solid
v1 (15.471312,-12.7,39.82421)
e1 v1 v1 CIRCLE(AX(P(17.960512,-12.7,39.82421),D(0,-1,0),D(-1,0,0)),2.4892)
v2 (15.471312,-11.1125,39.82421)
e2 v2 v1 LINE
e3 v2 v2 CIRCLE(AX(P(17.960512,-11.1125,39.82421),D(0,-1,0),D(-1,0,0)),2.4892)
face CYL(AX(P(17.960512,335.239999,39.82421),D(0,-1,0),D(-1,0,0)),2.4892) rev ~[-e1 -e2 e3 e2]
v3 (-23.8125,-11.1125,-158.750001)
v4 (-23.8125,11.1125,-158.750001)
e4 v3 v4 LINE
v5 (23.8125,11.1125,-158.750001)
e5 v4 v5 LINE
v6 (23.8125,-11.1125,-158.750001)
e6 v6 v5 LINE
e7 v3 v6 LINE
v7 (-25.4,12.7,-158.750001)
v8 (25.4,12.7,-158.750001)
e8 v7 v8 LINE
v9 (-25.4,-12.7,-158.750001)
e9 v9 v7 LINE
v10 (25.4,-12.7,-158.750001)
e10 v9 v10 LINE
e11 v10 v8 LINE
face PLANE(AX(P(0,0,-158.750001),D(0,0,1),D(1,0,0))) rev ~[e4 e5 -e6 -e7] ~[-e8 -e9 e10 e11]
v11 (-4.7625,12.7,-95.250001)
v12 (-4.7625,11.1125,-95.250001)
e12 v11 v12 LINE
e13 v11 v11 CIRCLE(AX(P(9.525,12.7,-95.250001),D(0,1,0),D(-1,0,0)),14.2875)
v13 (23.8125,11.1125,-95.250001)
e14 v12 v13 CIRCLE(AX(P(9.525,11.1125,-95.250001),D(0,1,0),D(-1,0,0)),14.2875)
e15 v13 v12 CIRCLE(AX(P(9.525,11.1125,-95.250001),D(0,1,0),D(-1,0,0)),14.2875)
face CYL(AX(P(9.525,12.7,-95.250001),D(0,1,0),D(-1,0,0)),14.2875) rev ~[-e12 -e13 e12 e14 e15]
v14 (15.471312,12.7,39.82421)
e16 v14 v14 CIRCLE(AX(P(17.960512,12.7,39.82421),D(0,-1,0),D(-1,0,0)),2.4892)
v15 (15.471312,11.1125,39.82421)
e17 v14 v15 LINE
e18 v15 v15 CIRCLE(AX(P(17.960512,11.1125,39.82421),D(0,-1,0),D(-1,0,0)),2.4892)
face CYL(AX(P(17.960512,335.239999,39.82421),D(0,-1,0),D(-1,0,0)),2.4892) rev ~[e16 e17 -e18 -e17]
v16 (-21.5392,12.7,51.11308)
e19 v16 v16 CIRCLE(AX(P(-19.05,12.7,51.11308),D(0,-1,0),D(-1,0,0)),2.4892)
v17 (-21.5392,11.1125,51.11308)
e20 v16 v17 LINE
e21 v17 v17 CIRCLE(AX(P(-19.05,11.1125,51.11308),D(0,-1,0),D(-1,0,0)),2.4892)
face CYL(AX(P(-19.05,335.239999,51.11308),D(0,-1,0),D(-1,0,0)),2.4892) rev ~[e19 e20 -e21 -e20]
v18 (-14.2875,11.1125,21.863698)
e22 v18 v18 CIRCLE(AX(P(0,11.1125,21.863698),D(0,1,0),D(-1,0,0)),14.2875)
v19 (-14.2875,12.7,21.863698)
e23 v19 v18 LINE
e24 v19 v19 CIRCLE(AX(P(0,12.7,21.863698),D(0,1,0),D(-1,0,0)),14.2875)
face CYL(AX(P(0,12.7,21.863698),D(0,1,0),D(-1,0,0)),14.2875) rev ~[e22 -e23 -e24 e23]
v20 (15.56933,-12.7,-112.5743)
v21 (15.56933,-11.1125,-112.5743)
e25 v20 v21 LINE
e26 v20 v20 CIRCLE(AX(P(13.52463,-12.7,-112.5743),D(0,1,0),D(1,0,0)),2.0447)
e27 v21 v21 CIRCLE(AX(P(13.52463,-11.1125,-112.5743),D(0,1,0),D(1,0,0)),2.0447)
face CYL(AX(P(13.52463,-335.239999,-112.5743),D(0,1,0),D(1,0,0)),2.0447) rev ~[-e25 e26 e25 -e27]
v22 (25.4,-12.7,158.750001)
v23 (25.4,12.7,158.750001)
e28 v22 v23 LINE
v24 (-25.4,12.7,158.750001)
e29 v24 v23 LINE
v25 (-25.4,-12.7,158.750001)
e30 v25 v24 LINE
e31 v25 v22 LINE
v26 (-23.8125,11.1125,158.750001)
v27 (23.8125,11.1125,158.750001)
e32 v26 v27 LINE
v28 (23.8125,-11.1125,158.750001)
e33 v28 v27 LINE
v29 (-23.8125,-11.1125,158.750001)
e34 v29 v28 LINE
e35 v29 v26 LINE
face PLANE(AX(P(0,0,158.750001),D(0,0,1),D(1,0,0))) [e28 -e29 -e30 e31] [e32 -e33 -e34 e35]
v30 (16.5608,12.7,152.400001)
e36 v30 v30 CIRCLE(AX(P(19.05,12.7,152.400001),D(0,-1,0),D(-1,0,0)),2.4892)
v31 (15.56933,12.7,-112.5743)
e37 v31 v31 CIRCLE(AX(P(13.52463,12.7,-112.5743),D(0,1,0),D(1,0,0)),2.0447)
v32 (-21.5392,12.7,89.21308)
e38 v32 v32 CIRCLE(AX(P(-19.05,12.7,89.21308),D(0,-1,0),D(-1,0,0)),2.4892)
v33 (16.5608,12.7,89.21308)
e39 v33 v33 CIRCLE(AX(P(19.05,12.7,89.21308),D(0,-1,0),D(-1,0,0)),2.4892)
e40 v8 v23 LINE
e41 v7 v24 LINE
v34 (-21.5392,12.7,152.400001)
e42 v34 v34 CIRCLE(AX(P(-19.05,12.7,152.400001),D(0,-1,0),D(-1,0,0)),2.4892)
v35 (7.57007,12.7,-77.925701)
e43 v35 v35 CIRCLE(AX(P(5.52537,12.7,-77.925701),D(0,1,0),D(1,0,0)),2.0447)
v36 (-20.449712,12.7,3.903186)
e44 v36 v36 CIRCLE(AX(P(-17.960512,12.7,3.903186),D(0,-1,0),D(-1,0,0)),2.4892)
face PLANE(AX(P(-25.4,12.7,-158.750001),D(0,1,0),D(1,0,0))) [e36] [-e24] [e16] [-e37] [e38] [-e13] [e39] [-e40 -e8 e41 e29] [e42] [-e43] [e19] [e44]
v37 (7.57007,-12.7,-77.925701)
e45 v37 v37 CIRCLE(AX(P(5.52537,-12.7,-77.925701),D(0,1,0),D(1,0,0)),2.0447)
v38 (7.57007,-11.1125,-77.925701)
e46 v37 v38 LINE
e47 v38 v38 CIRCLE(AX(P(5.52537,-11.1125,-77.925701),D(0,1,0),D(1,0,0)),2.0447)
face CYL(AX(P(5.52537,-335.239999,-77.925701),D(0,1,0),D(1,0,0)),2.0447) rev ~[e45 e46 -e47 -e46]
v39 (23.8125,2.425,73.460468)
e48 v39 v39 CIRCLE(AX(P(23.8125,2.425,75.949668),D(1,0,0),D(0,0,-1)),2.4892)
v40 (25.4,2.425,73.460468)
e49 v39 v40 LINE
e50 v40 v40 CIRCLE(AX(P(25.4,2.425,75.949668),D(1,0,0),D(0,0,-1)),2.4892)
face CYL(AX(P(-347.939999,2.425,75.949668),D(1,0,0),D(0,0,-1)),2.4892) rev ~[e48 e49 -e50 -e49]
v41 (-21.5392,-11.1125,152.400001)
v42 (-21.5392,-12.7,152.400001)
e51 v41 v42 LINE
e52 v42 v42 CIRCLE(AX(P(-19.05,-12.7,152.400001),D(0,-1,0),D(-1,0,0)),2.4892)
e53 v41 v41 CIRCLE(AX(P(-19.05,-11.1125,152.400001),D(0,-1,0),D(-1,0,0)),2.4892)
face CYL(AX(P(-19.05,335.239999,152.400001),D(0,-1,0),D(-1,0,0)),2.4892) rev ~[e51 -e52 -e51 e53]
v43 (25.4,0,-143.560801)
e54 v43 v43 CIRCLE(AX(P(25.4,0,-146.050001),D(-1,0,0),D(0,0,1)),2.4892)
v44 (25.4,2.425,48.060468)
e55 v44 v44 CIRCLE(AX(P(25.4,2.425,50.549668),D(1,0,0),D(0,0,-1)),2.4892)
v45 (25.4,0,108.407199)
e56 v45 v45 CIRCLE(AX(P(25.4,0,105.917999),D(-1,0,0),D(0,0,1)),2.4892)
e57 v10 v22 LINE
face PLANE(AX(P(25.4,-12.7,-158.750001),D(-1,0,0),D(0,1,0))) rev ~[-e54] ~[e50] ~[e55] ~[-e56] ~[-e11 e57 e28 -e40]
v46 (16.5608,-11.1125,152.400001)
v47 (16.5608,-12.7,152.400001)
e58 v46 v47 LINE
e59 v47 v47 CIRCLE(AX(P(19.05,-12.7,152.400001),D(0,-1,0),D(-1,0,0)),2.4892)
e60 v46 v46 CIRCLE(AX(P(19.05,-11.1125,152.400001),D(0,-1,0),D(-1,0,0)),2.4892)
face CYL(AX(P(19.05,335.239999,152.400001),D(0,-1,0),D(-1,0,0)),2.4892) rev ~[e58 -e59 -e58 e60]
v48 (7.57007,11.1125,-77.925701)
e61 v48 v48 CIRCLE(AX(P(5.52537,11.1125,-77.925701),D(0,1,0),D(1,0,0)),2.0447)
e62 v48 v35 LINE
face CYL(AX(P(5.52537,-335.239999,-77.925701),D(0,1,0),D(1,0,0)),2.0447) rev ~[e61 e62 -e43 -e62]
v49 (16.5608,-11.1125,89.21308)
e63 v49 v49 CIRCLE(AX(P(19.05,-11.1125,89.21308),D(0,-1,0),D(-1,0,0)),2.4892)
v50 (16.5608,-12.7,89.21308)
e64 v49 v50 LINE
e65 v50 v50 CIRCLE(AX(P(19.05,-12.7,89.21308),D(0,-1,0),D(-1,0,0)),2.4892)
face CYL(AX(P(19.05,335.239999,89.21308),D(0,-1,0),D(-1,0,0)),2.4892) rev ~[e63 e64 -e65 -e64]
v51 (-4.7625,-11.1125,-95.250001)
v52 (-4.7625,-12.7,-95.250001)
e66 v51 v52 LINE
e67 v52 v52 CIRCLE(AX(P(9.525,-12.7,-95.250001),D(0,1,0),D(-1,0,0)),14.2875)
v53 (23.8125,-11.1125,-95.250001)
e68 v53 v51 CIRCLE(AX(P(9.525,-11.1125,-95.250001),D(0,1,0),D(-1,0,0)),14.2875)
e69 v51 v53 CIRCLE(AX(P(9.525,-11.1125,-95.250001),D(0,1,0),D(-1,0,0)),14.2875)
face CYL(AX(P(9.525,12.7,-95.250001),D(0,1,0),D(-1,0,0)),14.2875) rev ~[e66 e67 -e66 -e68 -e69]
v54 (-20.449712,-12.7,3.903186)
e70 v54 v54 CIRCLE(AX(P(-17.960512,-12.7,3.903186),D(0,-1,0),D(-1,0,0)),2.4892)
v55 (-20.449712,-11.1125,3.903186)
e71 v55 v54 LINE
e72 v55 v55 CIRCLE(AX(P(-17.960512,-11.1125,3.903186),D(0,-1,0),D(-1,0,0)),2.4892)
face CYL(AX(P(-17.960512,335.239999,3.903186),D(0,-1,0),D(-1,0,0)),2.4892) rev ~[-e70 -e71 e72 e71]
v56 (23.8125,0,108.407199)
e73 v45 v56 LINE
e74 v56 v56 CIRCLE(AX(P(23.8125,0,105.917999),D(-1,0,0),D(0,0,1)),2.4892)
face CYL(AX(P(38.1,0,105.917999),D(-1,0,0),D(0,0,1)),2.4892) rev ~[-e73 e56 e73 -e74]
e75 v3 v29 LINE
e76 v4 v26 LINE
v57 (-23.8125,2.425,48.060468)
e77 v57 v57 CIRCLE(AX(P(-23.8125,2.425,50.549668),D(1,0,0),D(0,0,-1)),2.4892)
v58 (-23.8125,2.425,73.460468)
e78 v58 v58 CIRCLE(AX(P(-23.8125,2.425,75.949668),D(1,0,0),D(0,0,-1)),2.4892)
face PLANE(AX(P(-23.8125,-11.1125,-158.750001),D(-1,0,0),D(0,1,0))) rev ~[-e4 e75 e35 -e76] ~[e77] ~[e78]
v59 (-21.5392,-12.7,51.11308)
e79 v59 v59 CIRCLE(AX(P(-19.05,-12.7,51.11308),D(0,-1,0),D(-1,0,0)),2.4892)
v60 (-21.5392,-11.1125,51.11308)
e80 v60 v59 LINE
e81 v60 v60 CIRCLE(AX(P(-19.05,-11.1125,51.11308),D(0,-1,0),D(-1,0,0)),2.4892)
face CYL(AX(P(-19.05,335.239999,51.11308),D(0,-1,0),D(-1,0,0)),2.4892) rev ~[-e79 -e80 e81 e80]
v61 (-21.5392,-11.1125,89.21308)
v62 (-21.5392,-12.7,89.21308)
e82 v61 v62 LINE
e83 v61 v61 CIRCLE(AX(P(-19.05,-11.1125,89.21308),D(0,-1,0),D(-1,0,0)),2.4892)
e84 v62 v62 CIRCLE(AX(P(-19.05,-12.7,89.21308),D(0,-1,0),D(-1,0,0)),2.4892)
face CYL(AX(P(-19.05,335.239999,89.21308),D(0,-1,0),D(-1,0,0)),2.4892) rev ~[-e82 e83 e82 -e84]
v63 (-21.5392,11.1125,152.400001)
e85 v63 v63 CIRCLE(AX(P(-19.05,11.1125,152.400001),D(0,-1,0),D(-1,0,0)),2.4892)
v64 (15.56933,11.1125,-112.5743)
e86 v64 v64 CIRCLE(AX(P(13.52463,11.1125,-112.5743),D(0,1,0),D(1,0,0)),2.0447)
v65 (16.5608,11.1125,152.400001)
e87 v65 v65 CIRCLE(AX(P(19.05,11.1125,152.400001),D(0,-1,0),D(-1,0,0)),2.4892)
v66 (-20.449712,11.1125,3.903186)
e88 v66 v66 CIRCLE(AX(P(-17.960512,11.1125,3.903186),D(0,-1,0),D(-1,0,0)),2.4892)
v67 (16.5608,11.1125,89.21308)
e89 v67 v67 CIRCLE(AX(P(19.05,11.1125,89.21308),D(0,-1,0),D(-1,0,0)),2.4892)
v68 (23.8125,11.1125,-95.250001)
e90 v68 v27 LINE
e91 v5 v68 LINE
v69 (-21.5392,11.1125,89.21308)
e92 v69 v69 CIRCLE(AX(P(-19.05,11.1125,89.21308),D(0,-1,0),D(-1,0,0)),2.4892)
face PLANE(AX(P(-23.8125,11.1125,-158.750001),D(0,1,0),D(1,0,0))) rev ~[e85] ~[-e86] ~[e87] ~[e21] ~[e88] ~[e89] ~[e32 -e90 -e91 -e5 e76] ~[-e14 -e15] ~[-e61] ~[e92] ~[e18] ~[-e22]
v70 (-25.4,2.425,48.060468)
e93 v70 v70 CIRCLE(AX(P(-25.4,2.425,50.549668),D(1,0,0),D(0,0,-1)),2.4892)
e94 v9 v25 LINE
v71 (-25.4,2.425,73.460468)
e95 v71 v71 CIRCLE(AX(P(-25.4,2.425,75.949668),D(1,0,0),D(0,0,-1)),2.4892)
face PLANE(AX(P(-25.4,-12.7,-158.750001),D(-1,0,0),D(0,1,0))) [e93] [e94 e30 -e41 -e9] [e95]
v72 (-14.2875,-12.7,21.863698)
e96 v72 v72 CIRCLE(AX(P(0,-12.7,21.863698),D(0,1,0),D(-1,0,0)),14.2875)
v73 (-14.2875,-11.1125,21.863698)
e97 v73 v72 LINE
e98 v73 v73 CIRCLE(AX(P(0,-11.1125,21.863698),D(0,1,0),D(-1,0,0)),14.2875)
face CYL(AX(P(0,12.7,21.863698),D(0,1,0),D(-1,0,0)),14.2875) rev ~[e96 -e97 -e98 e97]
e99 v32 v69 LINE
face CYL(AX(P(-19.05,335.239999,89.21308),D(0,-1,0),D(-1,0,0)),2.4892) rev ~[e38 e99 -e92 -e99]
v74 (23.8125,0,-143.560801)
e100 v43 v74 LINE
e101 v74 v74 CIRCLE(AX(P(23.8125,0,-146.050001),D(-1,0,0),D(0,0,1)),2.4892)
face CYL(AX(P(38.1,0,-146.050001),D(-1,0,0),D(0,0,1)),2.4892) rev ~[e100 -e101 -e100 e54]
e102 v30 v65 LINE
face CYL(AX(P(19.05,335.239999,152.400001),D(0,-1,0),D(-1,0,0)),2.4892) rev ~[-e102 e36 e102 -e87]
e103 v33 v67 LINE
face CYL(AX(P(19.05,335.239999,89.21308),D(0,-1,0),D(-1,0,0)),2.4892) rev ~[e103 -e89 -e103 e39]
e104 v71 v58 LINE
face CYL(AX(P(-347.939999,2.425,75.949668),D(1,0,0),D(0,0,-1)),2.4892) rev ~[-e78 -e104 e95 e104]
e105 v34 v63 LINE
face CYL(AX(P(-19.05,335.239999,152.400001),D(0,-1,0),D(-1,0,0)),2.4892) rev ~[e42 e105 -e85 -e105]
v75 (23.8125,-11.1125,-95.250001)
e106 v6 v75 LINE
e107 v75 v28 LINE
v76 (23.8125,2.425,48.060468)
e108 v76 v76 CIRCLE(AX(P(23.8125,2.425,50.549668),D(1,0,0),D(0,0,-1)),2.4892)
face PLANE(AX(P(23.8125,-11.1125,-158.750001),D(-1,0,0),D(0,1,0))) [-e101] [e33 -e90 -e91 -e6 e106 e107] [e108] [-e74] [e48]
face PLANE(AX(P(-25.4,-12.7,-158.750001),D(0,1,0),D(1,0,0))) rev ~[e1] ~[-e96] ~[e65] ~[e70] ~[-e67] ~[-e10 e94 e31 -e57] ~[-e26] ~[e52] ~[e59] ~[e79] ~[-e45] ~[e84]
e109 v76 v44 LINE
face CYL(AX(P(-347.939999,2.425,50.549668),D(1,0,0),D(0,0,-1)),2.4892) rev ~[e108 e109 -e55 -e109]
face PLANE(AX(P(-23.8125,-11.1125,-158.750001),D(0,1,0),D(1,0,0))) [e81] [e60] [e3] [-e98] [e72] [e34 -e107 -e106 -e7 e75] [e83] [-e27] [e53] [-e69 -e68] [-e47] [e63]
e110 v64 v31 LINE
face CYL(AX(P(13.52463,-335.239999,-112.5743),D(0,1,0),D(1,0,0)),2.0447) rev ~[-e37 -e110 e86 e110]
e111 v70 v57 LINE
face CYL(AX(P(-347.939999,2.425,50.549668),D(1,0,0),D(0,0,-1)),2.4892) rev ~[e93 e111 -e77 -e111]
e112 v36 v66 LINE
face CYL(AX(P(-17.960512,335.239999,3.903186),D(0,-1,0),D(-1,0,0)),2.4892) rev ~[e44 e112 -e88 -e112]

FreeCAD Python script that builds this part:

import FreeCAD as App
import Part
import Sketcher
Q = App.Units.Quantity


def add_polygon(sketch, points):
    """Adds a closed chain of lines whose ends are joined by coincident constraints."""
    first, n = sketch.GeometryCount, len(points)
    for a, b in zip(points, points[1:] + points[:1]):
        sketch.addGeometry(Part.LineSegment(App.Vector(*a, 0), App.Vector(*b, 0)), False)
    for i in range(n):
        sketch.addConstraint(Sketcher.Constraint("Coincident", first + i, 2, first + (i + 1) % n, 1))

doc = App.newDocument("Part")
params = doc.addObject("Spreadsheet::Sheet", "Params")
for row, (alias, value) in enumerate([
    ("sketch1_width", "2 in"),
    ("sketch1_height", "1 in"),
    ("sketch1_width2", "1.875 in"),
    ("sketch1_height2", "0.875 in"),
    ("pad1_length", "6.25 in"),
    ("pad1_length2", "6.25 in"),
    ("sketch2_diameter", "1.125 in"),
    ("pocket1_length", "1.55 in"),
    ("sketch3_diameter", "0.196 in"),
    ("hole_diameter", "0.196 in"),
    ("sketch4_diameter", "0.196 in"),
    ("hole2_diameter", "0.196 in"),
    ("sketch5_diameter", "0.196 in"),
    ("hole3_diameter", "0.196 in"),
    ("sketch6_diameter", "0.161 in"),
    ("hole4_diameter", "0.161 in"),
    ("sketch7_diameter", "0.196 in"),
    ("hole5_diameter", "0.196 in"),
    ("hole5_depth", "0.5 in"),
], start=1):
    params.set(f"A{row}", alias)
    params.set(f"B{row}", "=" + value)
    params.setAlias(f"B{row}", alias)

body = doc.addObject("PartDesign::Body", "Body")

sketch1 = body.newObject("Sketcher::SketchObject", "Sketch")
sketch1.AttachmentSupport = (doc.getObject("XY_Plane"), [""])
sketch1.MapMode = "FlatFace"
add_polygon(sketch1, [(-25, 13), (-25, -13), (25, -13), (25, 13)])
add_polygon(sketch1, [(24, -11), (-24, -11), (-24, 11), (24, 11)])
sketch1.addConstraint(Sketcher.Constraint("Vertical", 0))
sketch1.addConstraint(Sketcher.Constraint("Horizontal", 1))
sketch1.addConstraint(Sketcher.Constraint("Vertical", 2))
sketch1.addConstraint(Sketcher.Constraint("Horizontal", 3))
sketch1.addConstraint(Sketcher.Constraint("Horizontal", 4))
sketch1.addConstraint(Sketcher.Constraint("Vertical", 5))
sketch1.addConstraint(Sketcher.Constraint("Horizontal", 6))
sketch1.addConstraint(Sketcher.Constraint("Vertical", 7))
sketch1.addConstraint(Sketcher.Constraint("Symmetric", 0, 2, 2, 2, -1, 1))
sketch1.addConstraint(Sketcher.Constraint("Symmetric", 4, 2, 6, 2, -1, 1))
sketch1.addConstraint(Sketcher.Constraint("DistanceX", 1, 1, 1, 2, Q("2 in")))
sketch1.addConstraint(Sketcher.Constraint("DistanceY", 0, 2, 0, 1, Q("1 in")))
sketch1.addConstraint(Sketcher.Constraint("DistanceX", 4, 2, 4, 1, Q("1.875 in")))
sketch1.addConstraint(Sketcher.Constraint("DistanceY", 5, 1, 5, 2, Q("0.875 in")))
sketch1.setExpression("Constraints[18]", "Params.sketch1_width")
sketch1.setExpression("Constraints[19]", "Params.sketch1_height")
sketch1.setExpression("Constraints[20]", "Params.sketch1_width2")
sketch1.setExpression("Constraints[21]", "Params.sketch1_height2")
pad1 = body.newObject("PartDesign::Pad", "Pad")
pad1.Profile = sketch1
pad1.Type = "TwoLengths"
pad1.setExpression("Length", "Params.pad1_length")
pad1.setExpression("Length2", "Params.pad1_length2")

sketch2 = body.newObject("Sketcher::SketchObject", "Sketch001")
sketch2.AttachmentSupport = (doc.getObject("XZ_Plane"), [""])
sketch2.MapMode = "FlatFace"
sketch2.AttachmentOffset = App.Placement(App.Vector(0, 0, -0.5 * 25.4), App.Rotation())
sketch2.addGeometry(Part.Circle(App.Vector(10, -95, 0), App.Vector(0, 0, 1), 14), False)
sketch2.addGeometry(Part.Circle(App.Vector(0, 22, 0), App.Vector(0, 0, 1), 14), False)
sketch2.addConstraint(Sketcher.Constraint("Equal", 0, 1))
sketch2.addConstraint(Sketcher.Constraint("PointOnObject", 1, 3, -2))
sketch2.addConstraint(Sketcher.Constraint("Diameter", 0, Q("1.125 in")))
sketch2.addConstraint(Sketcher.Constraint("DistanceY", 0, 3, -1, 1, Q("3.75 in")))
sketch2.addConstraint(Sketcher.Constraint("DistanceX", -1, 1, 0, 3, Q("0.375 in")))
sketch2.addConstraint(Sketcher.Constraint("DistanceY", 0, 3, 1, 3, 117.113698))
sketch2.setExpression("Constraints[2]", "Params.sketch2_diameter")
pocket1 = body.newObject("PartDesign::Pocket", "Pocket")
pocket1.Profile = sketch2
pocket1.setExpression("Length", "Params.pocket1_length")
pocket1.Reversed = True

sketch3 = body.newObject("Sketcher::SketchObject", "Sketch002")
sketch3.AttachmentSupport = (doc.getObject("XZ_Plane"), [""])
sketch3.MapMode = "FlatFace"
sketch3.AttachmentOffset = App.Placement(App.Vector(0, 0, -0.5 * 25.4), App.Rotation())
sketch3.addGeometry(Part.Circle(App.Vector(-18, 3.9, 0), App.Vector(0, 0, 1), 2.5), False)
sketch3.addGeometry(Part.Circle(App.Vector(18, 39.8, 0), App.Vector(0, 0, 1), 2.5), False)
sketch3.addConstraint(Sketcher.Constraint("Equal", 0, 1))
sketch3.addConstraint(Sketcher.Constraint("Diameter", 0, Q("0.196 in")))
sketch3.addConstraint(Sketcher.Constraint("DistanceY", -1, 1, 1, 3, 39.82421))
sketch3.addConstraint(Sketcher.Constraint("DistanceX", 0, 3, -1, 1, 17.960512))
sketch3.addConstraint(Sketcher.Constraint("DistanceY", -1, 1, 0, 3, 3.903186))
sketch3.addConstraint(Sketcher.Constraint("DistanceX", -1, 1, 1, 3, 17.960512))
sketch3.setExpression("Constraints[1]", "Params.sketch3_diameter")
doc.recompute()
hole = body.newObject("PartDesign::Hole", "Hole")
hole.Profile = sketch3
hole.ThreadType = "None"
hole.setExpression("Diameter", "Params.hole_diameter")
hole.DepthType = "ThroughAll"
hole.Reversed = True

sketch4 = body.newObject("Sketcher::SketchObject", "Sketch003")
sketch4.AttachmentSupport = (doc.getObject("YZ_Plane"), [""])
sketch4.MapMode = "FlatFace"
sketch4.AttachmentOffset = App.Placement(App.Vector(0, 0, -1 * 25.4), App.Rotation())
sketch4.addGeometry(Part.Circle(App.Vector(2.4, 50.5, 0), App.Vector(0, 0, 1), 2.5), False)
sketch4.addGeometry(Part.Circle(App.Vector(2.4, 75.9, 0), App.Vector(0, 0, 1), 2.5), False)
sketch4.addConstraint(Sketcher.Constraint("Equal", 0, 1))
sketch4.addConstraint(Sketcher.Constraint("Vertical", 0, 3, 1, 3))
sketch4.addConstraint(Sketcher.Constraint("Diameter", 0, Q("0.196 in")))
sketch4.addConstraint(Sketcher.Constraint("DistanceY", 0, 3, 1, 3, Q("1 in")))
sketch4.addConstraint(Sketcher.Constraint("DistanceX", -1, 1, 0, 3, 2.425))
sketch4.addConstraint(Sketcher.Constraint("DistanceY", -1, 1, 0, 3, 50.549668))
sketch4.setExpression("Constraints[2]", "Params.sketch4_diameter")
doc.recompute()
hole2 = body.newObject("PartDesign::Hole", "Hole001")
hole2.Profile = sketch4
hole2.ThreadType = "None"
hole2.setExpression("Diameter", "Params.hole2_diameter")
hole2.DepthType = "ThroughAll"
hole2.Reversed = True

sketch5 = body.newObject("Sketcher::SketchObject", "Sketch004")
sketch5.AttachmentSupport = (doc.getObject("XZ_Plane"), [""])
sketch5.MapMode = "FlatFace"
sketch5.AttachmentOffset = App.Placement(App.Vector(0, 0, -0.5 * 25.4), App.Rotation())
sketch5.addGeometry(Part.Circle(App.Vector(-19.1, 51.1, 0), App.Vector(0, 0, 1), 2.5), False)
sketch5.addGeometry(Part.Circle(App.Vector(-19.1, 89.2, 0), App.Vector(0, 0, 1), 2.5), False)
sketch5.addGeometry(Part.Circle(App.Vector(19.1, 89.2, 0), App.Vector(0, 0, 1), 2.5), False)
sketch5.addGeometry(Part.Circle(App.Vector(19.1, 152.4, 0), App.Vector(0, 0, 1), 2.5), False)
sketch5.addGeometry(Part.Circle(App.Vector(-19.1, 152.4, 0), App.Vector(0, 0, 1), 2.5), False)
sketch5.addConstraint(Sketcher.Constraint("Equal", 0, 1))
sketch5.addConstraint(Sketcher.Constraint("Equal", 1, 2))
sketch5.addConstraint(Sketcher.Constraint("Equal", 2, 3))
sketch5.addConstraint(Sketcher.Constraint("Equal", 3, 4))
sketch5.addConstraint(Sketcher.Constraint("Symmetric", 1, 3, 2, 3, -2))
sketch5.addConstraint(Sketcher.Constraint("Symmetric", 3, 3, 4, 3, -2))
sketch5.addConstraint(Sketcher.Constraint("Vertical", 0, 3, 1, 3))
sketch5.addConstraint(Sketcher.Constraint("Vertical", 2, 3, 3, 3))
sketch5.addConstraint(Sketcher.Constraint("Diameter", 0, Q("0.196 in")))
sketch5.addConstraint(Sketcher.Constraint("DistanceY", -1, 1, 3, 3, Q("6 in")))
sketch5.addConstraint(Sketcher.Constraint("DistanceY", 0, 3, 1, 3, Q("1.5 in")))
sketch5.addConstraint(Sketcher.Constraint("DistanceX", 1, 3, 2, 3, Q("1.5 in")))
sketch5.addConstraint(Sketcher.Constraint("DistanceY", -1, 1, 0, 3, 51.11308))
sketch5.setExpression("Constraints[8]", "Params.sketch5_diameter")
doc.recompute()
hole3 = body.newObject("PartDesign::Hole", "Hole002")
hole3.Profile = sketch5
hole3.ThreadType = "None"
hole3.setExpression("Diameter", "Params.hole3_diameter")
hole3.DepthType = "ThroughAll"
hole3.Reversed = True

sketch6 = body.newObject("Sketcher::SketchObject", "Sketch005")
sketch6.AttachmentSupport = (doc.getObject("XZ_Plane"), [""])
sketch6.MapMode = "FlatFace"
sketch6.AttachmentOffset = App.Placement(App.Vector(0, 0, 0.5 * 25.4), App.Rotation())
sketch6.addGeometry(Part.Circle(App.Vector(5.5, -77.9, 0), App.Vector(0, 0, 1), 2), False)
sketch6.addGeometry(Part.Circle(App.Vector(13.5, -112.6, 0), App.Vector(0, 0, 1), 2), False)
sketch6.addConstraint(Sketcher.Constraint("Equal", 0, 1))
sketch6.addConstraint(Sketcher.Constraint("Diameter", 0, Q("0.161 in")))
sketch6.addConstraint(Sketcher.Constraint("DistanceY", 0, 3, -1, 1, 77.925701))
sketch6.addConstraint(Sketcher.Constraint("DistanceY", 1, 3, -1, 1, 112.5743))
sketch6.addConstraint(Sketcher.Constraint("DistanceX", -1, 1, 0, 3, 5.52537))
sketch6.addConstraint(Sketcher.Constraint("DistanceX", -1, 1, 1, 3, 13.52463))
sketch6.setExpression("Constraints[1]", "Params.sketch6_diameter")
doc.recompute()
hole4 = body.newObject("PartDesign::Hole", "Hole003")
hole4.Profile = sketch6
hole4.ThreadType = "None"
hole4.setExpression("Diameter", "Params.hole4_diameter")
hole4.DepthType = "ThroughAll"

sketch7 = body.newObject("Sketcher::SketchObject", "Sketch006")
sketch7.AttachmentSupport = (doc.getObject("YZ_Plane"), [""])
sketch7.MapMode = "FlatFace"
sketch7.AttachmentOffset = App.Placement(App.Vector(0, 0, 1 * 25.4), App.Rotation())
sketch7.addGeometry(Part.Circle(App.Vector(0, -146.1, 0), App.Vector(0, 0, 1), 2.5), False)
sketch7.addGeometry(Part.Circle(App.Vector(0, 105.9, 0), App.Vector(0, 0, 1), 2.5), False)
sketch7.addConstraint(Sketcher.Constraint("Equal", 0, 1))
sketch7.addConstraint(Sketcher.Constraint("PointOnObject", 0, 3, -2))
sketch7.addConstraint(Sketcher.Constraint("PointOnObject", 1, 3, -2))
sketch7.addConstraint(Sketcher.Constraint("Diameter", 0, Q("0.196 in")))
sketch7.addConstraint(Sketcher.Constraint("DistanceY", 0, 3, -1, 1, Q("5.75 in")))
sketch7.addConstraint(Sketcher.Constraint("DistanceY", -1, 1, 1, 3, Q("4.17 in")))
sketch7.setExpression("Constraints[3]", "Params.sketch7_diameter")
doc.recompute()
hole5 = body.newObject("PartDesign::Hole", "Hole004")
hole5.Profile = sketch7
hole5.ThreadType = "None"
hole5.setExpression("Diameter", "Params.hole5_diameter")
hole5.DepthType = "Dimension"
hole5.setExpression("Depth", "Params.hole5_depth")
hole5.DrillPoint = "Angled"
hole5.DrillPointAngle = 118

doc.recompute()
